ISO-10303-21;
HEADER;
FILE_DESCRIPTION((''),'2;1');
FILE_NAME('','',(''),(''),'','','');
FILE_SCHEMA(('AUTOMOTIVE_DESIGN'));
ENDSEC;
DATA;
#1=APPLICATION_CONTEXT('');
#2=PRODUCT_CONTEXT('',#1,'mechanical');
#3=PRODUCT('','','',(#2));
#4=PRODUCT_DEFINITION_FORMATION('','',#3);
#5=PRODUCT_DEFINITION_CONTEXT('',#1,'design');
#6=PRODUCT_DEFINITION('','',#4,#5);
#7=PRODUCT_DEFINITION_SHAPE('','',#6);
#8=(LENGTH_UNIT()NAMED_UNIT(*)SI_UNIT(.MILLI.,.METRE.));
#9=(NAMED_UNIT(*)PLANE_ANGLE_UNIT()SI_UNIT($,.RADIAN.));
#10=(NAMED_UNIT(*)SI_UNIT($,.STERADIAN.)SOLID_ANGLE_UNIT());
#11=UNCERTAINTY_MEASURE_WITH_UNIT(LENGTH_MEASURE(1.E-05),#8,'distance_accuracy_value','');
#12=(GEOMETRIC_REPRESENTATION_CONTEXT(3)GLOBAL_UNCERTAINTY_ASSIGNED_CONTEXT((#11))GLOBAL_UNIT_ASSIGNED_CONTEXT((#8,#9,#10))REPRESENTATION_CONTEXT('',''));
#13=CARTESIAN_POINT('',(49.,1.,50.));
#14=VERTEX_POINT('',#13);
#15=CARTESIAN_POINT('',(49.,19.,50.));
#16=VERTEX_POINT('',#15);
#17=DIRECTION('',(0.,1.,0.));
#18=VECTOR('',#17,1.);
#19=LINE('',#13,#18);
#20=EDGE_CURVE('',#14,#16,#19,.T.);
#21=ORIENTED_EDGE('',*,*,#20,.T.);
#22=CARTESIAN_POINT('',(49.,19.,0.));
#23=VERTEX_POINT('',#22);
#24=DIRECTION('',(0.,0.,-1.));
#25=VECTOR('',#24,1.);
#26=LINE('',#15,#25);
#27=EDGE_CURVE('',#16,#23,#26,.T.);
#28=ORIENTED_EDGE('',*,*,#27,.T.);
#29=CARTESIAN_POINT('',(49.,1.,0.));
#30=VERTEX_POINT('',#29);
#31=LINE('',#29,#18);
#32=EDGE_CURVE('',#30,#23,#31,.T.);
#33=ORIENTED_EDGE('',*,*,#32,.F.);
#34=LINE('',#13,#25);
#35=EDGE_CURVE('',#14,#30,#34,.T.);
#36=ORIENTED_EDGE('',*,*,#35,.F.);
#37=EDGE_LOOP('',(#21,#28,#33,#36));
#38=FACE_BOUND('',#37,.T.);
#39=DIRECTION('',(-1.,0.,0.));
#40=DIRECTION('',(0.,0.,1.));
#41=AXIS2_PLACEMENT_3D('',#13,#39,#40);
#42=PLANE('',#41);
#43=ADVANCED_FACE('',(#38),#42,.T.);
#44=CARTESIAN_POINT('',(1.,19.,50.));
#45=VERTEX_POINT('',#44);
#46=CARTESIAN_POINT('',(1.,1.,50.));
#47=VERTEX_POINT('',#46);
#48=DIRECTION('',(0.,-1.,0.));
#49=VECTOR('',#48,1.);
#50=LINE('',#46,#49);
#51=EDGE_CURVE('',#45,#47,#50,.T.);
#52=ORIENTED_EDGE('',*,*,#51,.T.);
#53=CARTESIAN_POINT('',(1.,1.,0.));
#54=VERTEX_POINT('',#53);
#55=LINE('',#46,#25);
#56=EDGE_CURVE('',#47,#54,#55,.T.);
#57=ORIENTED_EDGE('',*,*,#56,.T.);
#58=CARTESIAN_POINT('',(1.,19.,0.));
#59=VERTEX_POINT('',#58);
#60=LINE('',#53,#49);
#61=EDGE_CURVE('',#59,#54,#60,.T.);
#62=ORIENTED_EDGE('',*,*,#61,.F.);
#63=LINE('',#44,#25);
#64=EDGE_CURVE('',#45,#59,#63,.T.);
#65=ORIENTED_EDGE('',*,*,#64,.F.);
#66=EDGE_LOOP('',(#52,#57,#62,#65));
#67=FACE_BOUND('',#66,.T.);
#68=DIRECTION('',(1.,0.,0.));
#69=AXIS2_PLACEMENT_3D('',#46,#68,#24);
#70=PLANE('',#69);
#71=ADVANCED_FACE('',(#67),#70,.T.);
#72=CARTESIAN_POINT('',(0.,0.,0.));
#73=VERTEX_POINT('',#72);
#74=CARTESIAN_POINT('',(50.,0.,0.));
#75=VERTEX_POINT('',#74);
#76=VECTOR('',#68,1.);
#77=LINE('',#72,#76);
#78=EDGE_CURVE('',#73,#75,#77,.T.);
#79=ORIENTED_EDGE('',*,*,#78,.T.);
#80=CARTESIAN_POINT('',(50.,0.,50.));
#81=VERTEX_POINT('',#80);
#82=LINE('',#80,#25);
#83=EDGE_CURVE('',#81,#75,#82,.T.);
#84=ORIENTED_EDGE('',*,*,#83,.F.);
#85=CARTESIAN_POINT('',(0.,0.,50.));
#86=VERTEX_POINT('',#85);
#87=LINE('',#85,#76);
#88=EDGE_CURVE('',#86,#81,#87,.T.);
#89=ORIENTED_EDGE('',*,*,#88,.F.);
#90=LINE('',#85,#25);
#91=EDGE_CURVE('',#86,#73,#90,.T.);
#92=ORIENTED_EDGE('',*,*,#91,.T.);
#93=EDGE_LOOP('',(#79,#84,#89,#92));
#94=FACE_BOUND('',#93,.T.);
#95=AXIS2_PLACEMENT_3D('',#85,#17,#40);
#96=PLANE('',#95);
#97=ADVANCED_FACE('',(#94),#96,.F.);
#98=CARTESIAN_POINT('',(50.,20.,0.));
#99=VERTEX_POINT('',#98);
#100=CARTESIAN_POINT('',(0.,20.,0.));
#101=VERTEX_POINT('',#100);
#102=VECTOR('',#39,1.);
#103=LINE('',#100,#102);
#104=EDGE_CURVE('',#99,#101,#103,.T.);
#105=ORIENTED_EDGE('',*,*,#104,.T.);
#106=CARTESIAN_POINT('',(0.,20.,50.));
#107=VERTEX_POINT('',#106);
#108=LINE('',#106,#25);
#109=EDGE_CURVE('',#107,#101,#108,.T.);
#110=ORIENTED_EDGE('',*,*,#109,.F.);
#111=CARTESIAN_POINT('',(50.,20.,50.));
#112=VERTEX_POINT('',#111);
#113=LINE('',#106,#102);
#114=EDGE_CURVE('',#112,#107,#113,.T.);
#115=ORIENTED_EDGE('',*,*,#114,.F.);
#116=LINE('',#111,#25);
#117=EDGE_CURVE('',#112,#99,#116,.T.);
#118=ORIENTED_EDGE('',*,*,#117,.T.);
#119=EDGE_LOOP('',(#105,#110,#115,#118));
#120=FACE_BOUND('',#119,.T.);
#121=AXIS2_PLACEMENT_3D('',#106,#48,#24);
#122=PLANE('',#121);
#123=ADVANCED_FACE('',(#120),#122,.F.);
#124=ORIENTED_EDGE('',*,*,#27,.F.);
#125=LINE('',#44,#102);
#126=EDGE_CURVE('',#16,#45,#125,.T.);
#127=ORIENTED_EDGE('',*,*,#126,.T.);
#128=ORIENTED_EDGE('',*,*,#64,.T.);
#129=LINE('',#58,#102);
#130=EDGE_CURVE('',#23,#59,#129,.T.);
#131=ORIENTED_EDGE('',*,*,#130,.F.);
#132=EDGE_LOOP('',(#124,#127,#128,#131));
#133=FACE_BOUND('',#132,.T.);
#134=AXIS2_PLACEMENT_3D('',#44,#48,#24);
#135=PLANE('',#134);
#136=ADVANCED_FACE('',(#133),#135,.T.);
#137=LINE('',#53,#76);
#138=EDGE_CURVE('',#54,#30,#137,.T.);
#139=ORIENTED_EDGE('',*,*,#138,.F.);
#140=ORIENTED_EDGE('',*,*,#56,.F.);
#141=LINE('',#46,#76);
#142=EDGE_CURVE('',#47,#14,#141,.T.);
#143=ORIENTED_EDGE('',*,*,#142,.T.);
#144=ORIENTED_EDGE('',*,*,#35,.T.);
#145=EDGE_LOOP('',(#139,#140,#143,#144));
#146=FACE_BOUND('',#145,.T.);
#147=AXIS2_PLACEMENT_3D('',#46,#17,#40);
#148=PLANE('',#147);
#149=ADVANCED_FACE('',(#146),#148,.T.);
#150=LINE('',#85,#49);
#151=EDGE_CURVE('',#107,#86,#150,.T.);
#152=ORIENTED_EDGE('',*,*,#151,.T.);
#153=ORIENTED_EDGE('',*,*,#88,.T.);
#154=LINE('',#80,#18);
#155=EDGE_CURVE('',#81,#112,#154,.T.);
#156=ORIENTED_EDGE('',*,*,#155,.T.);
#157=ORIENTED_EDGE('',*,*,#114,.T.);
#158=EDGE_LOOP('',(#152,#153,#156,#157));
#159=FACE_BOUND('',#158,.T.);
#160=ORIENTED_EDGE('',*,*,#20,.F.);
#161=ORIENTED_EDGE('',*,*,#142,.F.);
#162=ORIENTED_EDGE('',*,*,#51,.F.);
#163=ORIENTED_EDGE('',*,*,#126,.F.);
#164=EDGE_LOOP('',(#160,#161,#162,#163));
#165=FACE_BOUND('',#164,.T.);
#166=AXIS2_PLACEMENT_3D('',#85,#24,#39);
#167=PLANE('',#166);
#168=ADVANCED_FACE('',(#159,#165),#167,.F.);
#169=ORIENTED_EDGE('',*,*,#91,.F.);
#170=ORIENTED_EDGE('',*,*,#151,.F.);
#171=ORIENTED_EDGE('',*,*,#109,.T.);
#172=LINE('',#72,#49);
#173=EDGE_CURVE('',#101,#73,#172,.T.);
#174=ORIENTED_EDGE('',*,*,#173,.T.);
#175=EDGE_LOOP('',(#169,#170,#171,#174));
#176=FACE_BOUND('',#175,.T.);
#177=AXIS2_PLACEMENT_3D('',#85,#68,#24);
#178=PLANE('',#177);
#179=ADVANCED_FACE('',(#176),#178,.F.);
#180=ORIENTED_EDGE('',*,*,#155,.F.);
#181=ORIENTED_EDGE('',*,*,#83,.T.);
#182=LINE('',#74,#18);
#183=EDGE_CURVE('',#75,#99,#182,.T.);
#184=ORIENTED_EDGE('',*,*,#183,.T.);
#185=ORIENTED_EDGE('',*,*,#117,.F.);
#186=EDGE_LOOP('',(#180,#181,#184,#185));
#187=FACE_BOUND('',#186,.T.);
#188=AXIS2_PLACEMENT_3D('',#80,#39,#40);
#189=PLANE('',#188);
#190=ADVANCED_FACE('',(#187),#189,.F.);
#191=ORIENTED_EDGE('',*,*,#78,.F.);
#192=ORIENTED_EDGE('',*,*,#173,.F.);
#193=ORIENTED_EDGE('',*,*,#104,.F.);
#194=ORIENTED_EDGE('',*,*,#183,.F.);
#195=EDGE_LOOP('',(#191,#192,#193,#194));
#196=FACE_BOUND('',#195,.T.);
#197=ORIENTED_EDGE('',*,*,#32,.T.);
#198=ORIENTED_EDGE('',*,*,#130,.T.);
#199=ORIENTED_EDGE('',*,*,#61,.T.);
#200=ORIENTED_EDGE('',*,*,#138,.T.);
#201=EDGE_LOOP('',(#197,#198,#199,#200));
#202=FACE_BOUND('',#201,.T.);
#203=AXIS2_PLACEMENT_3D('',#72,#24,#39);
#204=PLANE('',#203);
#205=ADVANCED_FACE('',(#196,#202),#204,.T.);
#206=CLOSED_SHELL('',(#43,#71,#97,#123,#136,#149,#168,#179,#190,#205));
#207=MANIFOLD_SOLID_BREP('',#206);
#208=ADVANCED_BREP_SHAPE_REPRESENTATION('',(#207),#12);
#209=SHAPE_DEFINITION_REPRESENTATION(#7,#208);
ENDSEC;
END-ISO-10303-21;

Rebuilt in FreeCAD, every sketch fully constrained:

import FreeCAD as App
import Part
import Sketcher

V = App.Vector
Q = App.Units.Quantity


def add_polygon(sketch, points):
    """Adds a closed chain of lines whose ends are joined by coincident constraints."""
    first, n = sketch.GeometryCount, len(points)
    for a, b in zip(points, points[1:] + points[:1]):
        sketch.addGeometry(Part.LineSegment(App.Vector(*a, 0), App.Vector(*b, 0)), False)
    for i in range(n):
        sketch.addConstraint(Sketcher.Constraint("Coincident", first + i, 2, first + (i + 1) % n, 1))

doc = App.newDocument("Part")
body = doc.addObject("PartDesign::Body", "Body")

# Sketch on XY plane
sketch1 = body.newObject("Sketcher::SketchObject", "Sketch")
sketch1.AttachmentSupport = (doc.getObject("XY_Plane"), [""])
sketch1.MapMode = "FlatFace"
add_polygon(sketch1, [(0, 20), (0, 0), (50, 0), (50, 20)])  # lines 0-3
add_polygon(sketch1, [(49, 1), (1, 1), (1, 19), (49, 19)])  # lines 4-7
sketch1.addConstraint(Sketcher.Constraint("Vertical", 0))
sketch1.addConstraint(Sketcher.Constraint("Horizontal", 1))
sketch1.addConstraint(Sketcher.Constraint("Vertical", 2))
sketch1.addConstraint(Sketcher.Constraint("Horizontal", 3))
sketch1.addConstraint(Sketcher.Constraint("Horizontal", 4))
sketch1.addConstraint(Sketcher.Constraint("Vertical", 5))
sketch1.addConstraint(Sketcher.Constraint("Horizontal", 6))
sketch1.addConstraint(Sketcher.Constraint("Vertical", 7))
sketch1.addConstraint(Sketcher.Constraint("Coincident", 0, 2, -1, 1))
sketch1.addConstraint(Sketcher.Constraint("DistanceX", 1, 1, 1, 2, Q("50 mm")))
sketch1.addConstraint(Sketcher.Constraint("DistanceX", 4, 2, 4, 1, Q("48 mm")))
sketch1.addConstraint(Sketcher.Constraint("DistanceY", 0, 2, 0, 1, Q("20 mm")))
sketch1.addConstraint(Sketcher.Constraint("DistanceY", 5, 1, 5, 2, Q("18 mm")))
sketch1.addConstraint(Sketcher.Constraint("DistanceX", -1, 1, 4, 2, Q("1 mm")))
sketch1.addConstraint(Sketcher.Constraint("DistanceY", -1, 1, 4, 2, Q("1 mm")))
pad1 = body.newObject("PartDesign::Pad", "Pad")
pad1.Profile = sketch1
pad1.Length = 50

doc.recompute()
